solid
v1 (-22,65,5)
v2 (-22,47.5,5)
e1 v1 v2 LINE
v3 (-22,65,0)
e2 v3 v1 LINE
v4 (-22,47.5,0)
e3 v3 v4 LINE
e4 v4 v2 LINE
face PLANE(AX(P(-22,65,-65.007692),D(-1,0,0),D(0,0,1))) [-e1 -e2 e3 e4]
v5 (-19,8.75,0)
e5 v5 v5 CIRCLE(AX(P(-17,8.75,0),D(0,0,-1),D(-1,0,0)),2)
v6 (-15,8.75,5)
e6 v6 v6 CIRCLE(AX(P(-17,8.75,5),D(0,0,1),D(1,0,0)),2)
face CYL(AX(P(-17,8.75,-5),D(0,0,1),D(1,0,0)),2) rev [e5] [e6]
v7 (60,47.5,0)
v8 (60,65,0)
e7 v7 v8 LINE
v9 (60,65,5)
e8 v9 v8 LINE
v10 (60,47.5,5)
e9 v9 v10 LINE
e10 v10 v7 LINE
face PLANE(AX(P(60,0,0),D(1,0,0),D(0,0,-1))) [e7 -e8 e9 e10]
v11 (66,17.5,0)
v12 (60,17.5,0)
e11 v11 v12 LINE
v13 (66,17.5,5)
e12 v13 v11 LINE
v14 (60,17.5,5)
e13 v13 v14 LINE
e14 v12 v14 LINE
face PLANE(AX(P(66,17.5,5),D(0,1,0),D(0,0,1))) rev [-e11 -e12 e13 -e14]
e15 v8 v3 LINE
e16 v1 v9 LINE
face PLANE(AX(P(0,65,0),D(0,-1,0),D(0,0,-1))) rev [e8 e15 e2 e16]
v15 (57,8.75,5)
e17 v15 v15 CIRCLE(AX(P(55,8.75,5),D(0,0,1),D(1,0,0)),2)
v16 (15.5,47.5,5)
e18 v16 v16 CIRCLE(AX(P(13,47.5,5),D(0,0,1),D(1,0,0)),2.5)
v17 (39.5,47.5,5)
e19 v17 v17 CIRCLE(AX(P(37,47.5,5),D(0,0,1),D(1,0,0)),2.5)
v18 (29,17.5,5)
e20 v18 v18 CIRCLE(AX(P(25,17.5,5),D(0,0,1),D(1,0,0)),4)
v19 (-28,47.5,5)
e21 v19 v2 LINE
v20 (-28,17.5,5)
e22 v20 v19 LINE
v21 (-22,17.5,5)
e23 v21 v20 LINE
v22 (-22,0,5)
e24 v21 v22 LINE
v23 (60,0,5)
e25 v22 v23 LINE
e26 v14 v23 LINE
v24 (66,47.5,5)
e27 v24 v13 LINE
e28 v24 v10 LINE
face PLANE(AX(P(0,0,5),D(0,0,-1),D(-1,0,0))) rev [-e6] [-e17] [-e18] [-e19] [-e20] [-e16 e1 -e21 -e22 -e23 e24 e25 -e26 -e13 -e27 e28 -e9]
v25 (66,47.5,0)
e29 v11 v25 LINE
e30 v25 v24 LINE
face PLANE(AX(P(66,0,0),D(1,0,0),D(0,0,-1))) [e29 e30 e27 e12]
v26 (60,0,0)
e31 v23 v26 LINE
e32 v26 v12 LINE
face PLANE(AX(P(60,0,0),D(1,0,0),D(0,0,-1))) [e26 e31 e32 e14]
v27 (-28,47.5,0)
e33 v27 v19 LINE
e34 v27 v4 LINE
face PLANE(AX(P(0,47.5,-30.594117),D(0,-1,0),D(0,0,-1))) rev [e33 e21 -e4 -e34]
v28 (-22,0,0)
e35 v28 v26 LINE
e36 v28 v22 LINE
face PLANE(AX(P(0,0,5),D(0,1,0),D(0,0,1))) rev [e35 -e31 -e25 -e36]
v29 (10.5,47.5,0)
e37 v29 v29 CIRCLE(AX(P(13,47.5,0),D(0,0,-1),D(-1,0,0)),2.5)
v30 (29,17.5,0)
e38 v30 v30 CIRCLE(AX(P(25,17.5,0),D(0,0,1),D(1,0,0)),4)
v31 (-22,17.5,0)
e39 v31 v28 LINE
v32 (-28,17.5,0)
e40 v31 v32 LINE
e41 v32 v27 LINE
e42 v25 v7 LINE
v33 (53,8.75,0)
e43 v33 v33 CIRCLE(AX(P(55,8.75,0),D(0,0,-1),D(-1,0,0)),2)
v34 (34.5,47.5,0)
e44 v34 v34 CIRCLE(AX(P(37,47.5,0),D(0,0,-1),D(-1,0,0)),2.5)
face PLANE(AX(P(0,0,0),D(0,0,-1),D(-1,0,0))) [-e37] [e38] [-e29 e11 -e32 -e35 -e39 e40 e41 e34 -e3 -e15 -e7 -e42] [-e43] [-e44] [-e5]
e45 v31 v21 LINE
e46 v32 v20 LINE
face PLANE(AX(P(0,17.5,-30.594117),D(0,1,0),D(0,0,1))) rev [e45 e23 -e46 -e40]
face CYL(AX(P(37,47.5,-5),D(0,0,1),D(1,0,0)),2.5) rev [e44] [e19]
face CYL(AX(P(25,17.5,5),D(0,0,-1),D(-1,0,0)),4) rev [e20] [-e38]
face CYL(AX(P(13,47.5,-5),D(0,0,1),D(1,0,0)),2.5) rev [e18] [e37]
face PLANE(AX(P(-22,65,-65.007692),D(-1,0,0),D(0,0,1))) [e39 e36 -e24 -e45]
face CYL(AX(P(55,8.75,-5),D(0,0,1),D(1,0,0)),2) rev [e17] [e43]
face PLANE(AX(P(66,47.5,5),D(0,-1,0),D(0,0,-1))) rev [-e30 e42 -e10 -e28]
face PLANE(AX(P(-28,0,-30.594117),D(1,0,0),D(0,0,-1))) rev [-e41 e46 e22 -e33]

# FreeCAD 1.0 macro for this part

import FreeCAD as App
import Part
import Sketcher

V = App.Vector
Q = App.Units.Quantity


def add_polygon(sketch, points):
    """Adds a closed chain of lines whose ends are joined by coincident constraints."""
    first, n = sketch.GeometryCount, len(points)
    for a, b in zip(points, points[1:] + points[:1]):
        sketch.addGeometry(Part.LineSegment(App.Vector(*a, 0), App.Vector(*b, 0)), False)
    for i in range(n):
        sketch.addConstraint(Sketcher.Constraint("Coincident", first + i, 2, first + (i + 1) % n, 1))

doc = App.newDocument("Part")
body = doc.addObject("PartDesign::Body", "Body")

# Sketch on XY plane
sketch1 = body.newObject("Sketcher::SketchObject", "Sketch")
sketch1.AttachmentSupport = (doc.getObject("XY_Plane"), [""])
sketch1.MapMode = "FlatFace"
add_polygon(sketch1, [(0, 65), (0, 0), (50, 0), (50, 65)])  # lines 0-3
sketch1.addGeometry(Part.Circle(V(25, 17.5, 0), V(0, 0, 1), 4), False)  # 4
sketch1.addGeometry(Part.Circle(V(13, 47.5, 0), V(0, 0, 1), 2), False)  # 5
sketch1.addGeometry(Part.Circle(V(37, 47.5, 0), V(0, 0, 1), 2), False)  # 6
sketch1.addGeometry(Part.Circle(V(25, 59.5, 0), V(0, 0, 1), 2), False)  # 7
sketch1.addConstraint([
    Sketcher.Constraint("Vertical", 0),
    Sketcher.Constraint("Horizontal", 1),
    Sketcher.Constraint("Vertical", 2),
    Sketcher.Constraint("Horizontal", 3),
    Sketcher.Constraint("Coincident", 0, 2, -1, 1),
    Sketcher.Constraint("Equal", 5, 6),
    Sketcher.Constraint("Equal", 6, 7),
    Sketcher.Constraint("Horizontal", 5, 3, 6, 3),
    Sketcher.Constraint("Vertical", 4, 3, 7, 3),
    Sketcher.Constraint("Diameter", 4, Q("8 mm")),
    Sketcher.Constraint("Diameter", 5, Q("4 mm")),
    Sketcher.Constraint("DistanceX", 1, 1, 1, 2, Q("50 mm")),
    Sketcher.Constraint("DistanceY", 0, 2, 0, 1, Q("65 mm")),
    Sketcher.Constraint("DistanceX", -1, 1, 4, 3, Q("25 mm")),
    Sketcher.Constraint("DistanceX", -1, 1, 5, 3, Q("13 mm")),
    Sketcher.Constraint("DistanceX", -1, 1, 6, 3, Q("37 mm")),
    Sketcher.Constraint("DistanceY", 4, 3, 5, 3, Q("30 mm")),
    Sketcher.Constraint("DistanceY", 5, 3, 7, 3, Q("12 mm")),
    Sketcher.Constraint("DistanceY", -1, 1, 4, 3, Q("17.5 mm")),
])
pad1 = body.newObject("PartDesign::Pad", "Pad")
pad1.Profile = sketch1
pad1.Length = 5

# Sketch on XY plane
sketch2 = body.newObject("Sketcher::SketchObject", "Sketch001")
sketch2.AttachmentSupport = (doc.getObject("XY_Plane"), [""])
sketch2.MapMode = "FlatFace"
sketch2.AttachmentOffset = App.Placement(V(0, 0, 5), App.Rotation())
add_polygon(sketch2, [(-21, 65), (-21, 0), (0, 0), (0, 65)])  # lines 0-3
sketch2.addConstraint([
    Sketcher.Constraint("Vertical", 0),
    Sketcher.Constraint("Horizontal", 1),
    Sketcher.Constraint("Vertical", 2),
    Sketcher.Constraint("Horizontal", 3),
    Sketcher.Constraint("Coincident", 1, 2, -1, 1),
    Sketcher.Constraint("DistanceX", 1, 1, 1, 2, Q("21 mm")),
    Sketcher.Constraint("DistanceY", 0, 2, 0, 1, Q("65 mm")),
])
pad2 = body.newObject("PartDesign::Pad", "Pad001")
pad2.Profile = sketch2
pad2.Length = 5
pad2.Reversed = True

# Sketch on XY plane
sketch3 = body.newObject("Sketcher::SketchObject", "Sketch002")
sketch3.AttachmentSupport = (doc.getObject("XY_Plane"), [""])
sketch3.MapMode = "FlatFace"
sketch3.AttachmentOffset = App.Placement(V(0, 0, 5), App.Rotation())
add_polygon(sketch3, [(-22, 65), (-22, 0), (-21, 0), (-21, 65)])  # lines 0-3
sketch3.addConstraint([
    Sketcher.Constraint("Vertical", 0),
    Sketcher.Constraint("Horizontal", 1),
    Sketcher.Constraint("Vertical", 2),
    Sketcher.Constraint("Horizontal", 3),
    Sketcher.Constraint("PointOnObject", 0, 2, -1),
    Sketcher.Constraint("DistanceX", 1, 1, 1, 2, Q("1 mm")),
    Sketcher.Constraint("DistanceY", 0, 2, 0, 1, Q("65 mm")),
    Sketcher.Constraint("DistanceX", 0, 2, -1, 1, Q("22 mm")),
])
pad3 = body.newObject("PartDesign::Pad", "Pad002")
pad3.Profile = sketch3
pad3.Length = 5
pad3.Reversed = True

# Sketch on XY plane
sketch4 = body.newObject("Sketcher::SketchObject", "Sketch003")
sketch4.AttachmentSupport = (doc.getObject("XY_Plane"), [""])
sketch4.MapMode = "FlatFace"
sketch4.AttachmentOffset = App.Placement(V(0, 0, 5), App.Rotation())
add_polygon(sketch4, [(-22, 17.5), (-22, 47.5), (-28, 47.5), (-28, 17.5)])  # lines 0-3
add_polygon(sketch4, [(56, 17.5), (56, 47.5), (50, 47.5), (50, 17.5)])  # lines 4-7
sketch4.addConstraint([
    Sketcher.Constraint("Vertical", 0),
    Sketcher.Constraint("Horizontal", 1),
    Sketcher.Constraint("Vertical", 2),
    Sketcher.Constraint("Horizontal", 3),
    Sketcher.Constraint("Vertical", 4),
    Sketcher.Constraint("Horizontal", 5),
    Sketcher.Constraint("Vertical", 6),
    Sketcher.Constraint("Horizontal", 7),
    Sketcher.Constraint("Horizontal", 1, 2, 4, 2),
    Sketcher.Constraint("Horizontal", 3, 2, 6, 2),
    Sketcher.Constraint("Equal", 3, 5),
    Sketcher.Constraint("DistanceX", 1, 2, 1, 1, Q("6 mm")),
    Sketcher.Constraint("DistanceY", 0, 1, 0, 2, Q("30 mm")),
    Sketcher.Constraint("DistanceX", 0, 2, -1, 1, Q("22 mm")),
    Sketcher.Constraint("DistanceX", -1, 1, 4, 2, Q("56 mm")),
    Sketcher.Constraint("DistanceY", -1, 1, 0, 2, Q("47.5 mm")),
])
pad4 = body.newObject("PartDesign::Pad", "Pad003")
pad4.Profile = sketch4
pad4.Length = 5
pad4.Reversed = True

# Sketch on XY plane
sketch5 = body.newObject("Sketcher::SketchObject", "Sketch004")
sketch5.AttachmentSupport = (doc.getObject("XY_Plane"), [""])
sketch5.MapMode = "FlatFace"
sketch5.AttachmentOffset = App.Placement(V(0, 0, 5), App.Rotation())
sketch5.addGeometry(Part.Circle(V(25, 35.5, 0), V(0, 0, 1), 2), False)
sketch5.addConstraint([
    Sketcher.Constraint("Diameter", 0, Q("4 mm")),
    Sketcher.Constraint("DistanceX", -1, 1, 0, 3, Q("25 mm")),
    Sketcher.Constraint("DistanceY", -1, 1, 0, 3, Q("35.5 mm")),
])
pocket1 = body.newObject("PartDesign::Pocket", "Pocket")
pocket1.Profile = sketch5
pocket1.Length = 59

# Sketch on XY plane
sketch6 = body.newObject("Sketcher::SketchObject", "Sketch005")
sketch6.AttachmentSupport = (doc.getObject("XY_Plane"), [""])
sketch6.MapMode = "FlatFace"
sketch6.AttachmentOffset = App.Placement(V(0, 0, 5), App.Rotation())
sketch6.addGeometry([
    Part.Circle(V(-17, 56.25, 0), V(0, 0, 1), 1.5),
    Part.Circle(V(45, 56.25, 0), V(0, 0, 1), 1.5),
], False)
sketch6.addConstraint([
    Sketcher.Constraint("Equal", 0, 1),
    Sketcher.Constraint("Horizontal", 0, 3, 1, 3),
    Sketcher.Constraint("Diameter", 0, Q("3 mm")),
    Sketcher.Constraint("DistanceX", 0, 3, -1, 1, Q("17 mm")),
    Sketcher.Constraint("DistanceX", -1, 1, 1, 3, Q("45 mm")),
    Sketcher.Constraint("DistanceY", -1, 1, 0, 3, Q("56.25 mm")),
])
pocket2 = body.newObject("PartDesign::Pocket", "Pocket001")
pocket2.Profile = sketch6
pocket2.Length = 10

# Sketch on XY plane
sketch7 = body.newObject("Sketcher::SketchObject", "Sketch006")
sketch7.AttachmentSupport = (doc.getObject("XY_Plane"), [""])
sketch7.MapMode = "FlatFace"
sketch7.AttachmentOffset = App.Placement(V(0, 0, 5), App.Rotation())
sketch7.addGeometry([
    Part.Circle(V(45, 8.75, 0), V(0, 0, 1), 1.5),
    Part.Circle(V(-17, 8.75, 0), V(0, 0, 1), 1.5),
], False)
sketch7.addConstraint([
    Sketcher.Constraint("Equal", 0, 1),
    Sketcher.Constraint("Horizontal", 0, 3, 1, 3),
    Sketcher.Constraint("Diameter", 0, Q("3 mm")),
    Sketcher.Constraint("DistanceX", -1, 1, 0, 3, Q("45 mm")),
    Sketcher.Constraint("DistanceX", 1, 3, -1, 1, Q("17 mm")),
    Sketcher.Constraint("DistanceY", -1, 1, 0, 3, Q("8.75 mm")),
])
pocket3 = body.newObject("PartDesign::Pocket", "Pocket002")
pocket3.Profile = sketch7
pocket3.Length = 10

# Sketch on XY plane
sketch8 = body.newObject("Sketcher::SketchObject", "Sketch007")
sketch8.AttachmentSupport = (doc.getObject("XY_Plane"), [""])
sketch8.MapMode = "FlatFace"
sketch8.AttachmentOffset = App.Placement(V(0, 0, 5), App.Rotation())
sketch8.addGeometry([
    Part.Circle(V(-17, 56.25, 0), V(0, 0, 1), 1.5),
    Part.Circle(V(45, 56.25, 0), V(0, 0, 1), 1.5),
], False)
sketch8.addConstraint([
    Sketcher.Constraint("Equal", 0, 1),
    Sketcher.Constraint("Horizontal", 0, 3, 1, 3),
    Sketcher.Constraint("Diameter", 0, Q("3 mm")),
    Sketcher.Constraint("DistanceX", 0, 3, -1, 1, Q("17 mm")),
    Sketcher.Constraint("DistanceX", -1, 1, 1, 3, Q("45 mm")),
    Sketcher.Constraint("DistanceY", -1, 1, 0, 3, Q("56.25 mm")),
])
pad5 = body.newObject("PartDesign::Pad", "Pad004")
pad5.Profile = sketch8
pad5.Length = 5
pad5.Reversed = True

# Sketch on XY plane
sketch9 = body.newObject("Sketcher::SketchObject", "Sketch008")
sketch9.AttachmentSupport = (doc.getObject("XY_Plane"), [""])
sketch9.MapMode = "FlatFace"
sketch9.AttachmentOffset = App.Placement(V(0, 0, 5), App.Rotation())
sketch9.addGeometry([
    Part.Circle(V(-17, 8.75, 0), V(0, 0, 1), 2),
    Part.Circle(V(45, 8.75, 0), V(0, 0, 1), 2),
], False)
sketch9.addConstraint([
    Sketcher.Constraint("Equal", 0, 1),
    Sketcher.Constraint("Horizontal", 0, 3, 1, 3),
    Sketcher.Constraint("Diameter", 0, Q("4 mm")),
    Sketcher.Constraint("DistanceX", 0, 3, -1, 1, Q("17 mm")),
    Sketcher.Constraint("DistanceX", -1, 1, 1, 3, Q("45 mm")),
    Sketcher.Constraint("DistanceY", -1, 1, 0, 3, Q("8.75 mm")),
])
pocket4 = body.newObject("PartDesign::Pocket", "Pocket003")
pocket4.Profile = sketch9
pocket4.Length = 10

# Sketch on XY plane
sketch10 = body.newObject("Sketcher::SketchObject", "Sketch009")
sketch10.AttachmentSupport = (doc.getObject("XY_Plane"), [""])
sketch10.MapMode = "FlatFace"
sketch10.AttachmentOffset = App.Placement(V(0, 0, 5), App.Rotation())
sketch10.addGeometry([
    Part.Circle(V(25, 59.5, 0), V(0, 0, 1), 2.5),
    Part.Circle(V(25, 35.5, 0), V(0, 0, 1), 2.5),
    Part.Circle(V(13, 47.5, 0), V(0, 0, 1), 2.5),
    Part.Circle(V(37, 47.5, 0), V(0, 0, 1), 2.5),
], False)
sketch10.addConstraint([
    Sketcher.Constraint("Equal", 0, 1),
    Sketcher.Constraint("Equal", 1, 2),
    Sketcher.Constraint("Equal", 2, 3),
    Sketcher.Constraint("Horizontal", 2, 3, 3, 3),
    Sketcher.Constraint("Vertical", 0, 3, 1, 3),
    Sketcher.Constraint("Diameter", 0, Q("5 mm")),
    Sketcher.Constraint("DistanceX", -1, 1, 0, 3, Q("25 mm")),
    Sketcher.Constraint("DistanceX", -1, 1, 2, 3, Q("13 mm")),
    Sketcher.Constraint("DistanceX", -1, 1, 3, 3, Q("37 mm")),
    Sketcher.Constraint("DistanceY", 1, 3, 0, 3, Q("24 mm")),
    Sketcher.Constraint("DistanceY", 2, 3, 0, 3, Q("12 mm")),
    Sketcher.Constraint("DistanceY", -1, 1, 0, 3, Q("59.5 mm")),
])
pocket5 = body.newObject("PartDesign::Pocket", "Pocket004")
pocket5.Profile = sketch10
pocket5.Length = 10

# Sketch on XY plane
sketch11 = body.newObject("Sketcher::SketchObject", "Sketch010")
sketch11.AttachmentSupport = (doc.getObject("XY_Plane"), [""])
sketch11.MapMode = "FlatFace"
sketch11.AttachmentOffset = App.Placement(V(0, 0, 5), App.Rotation())
sketch11.addGeometry([
    Part.Circle(V(13, 47.5, 0), V(0, 0, 1), 2.5),
    Part.Circle(V(25, 59.5, 0), V(0, 0, 1), 2.5),
    Part.Circle(V(37, 47.5, 0), V(0, 0, 1), 2.5),
    Part.Circle(V(25, 35.5, 0), V(0, 0, 1), 2.5),
], False)
sketch11.addConstraint([
    Sketcher.Constraint("Equal", 0, 1),
    Sketcher.Constraint("Equal", 1, 2),
    Sketcher.Constraint("Equal", 2, 3),
    Sketcher.Constraint("Horizontal", 0, 3, 2, 3),
    Sketcher.Constraint("Vertical", 1, 3, 3, 3),
    Sketcher.Constraint("Diameter", 0, Q("5 mm")),
    Sketcher.Constraint("DistanceX", -1, 1, 0, 3, Q("13 mm")),
    Sketcher.Constraint("DistanceX", -1, 1, 1, 3, Q("25 mm")),
    Sketcher.Constraint("DistanceX", -1, 1, 2, 3, Q("37 mm")),
    Sketcher.Constraint("DistanceY", 0, 3, 1, 3, Q("12 mm")),
    Sketcher.Constraint("DistanceY", 3, 3, 0, 3, Q("12 mm")),
    Sketcher.Constraint("DistanceY", -1, 1, 0, 3, Q("47.5 mm")),
])
pad6 = body.newObject("PartDesign::Pad", "Pad005")
pad6.Profile = sketch11
pad6.Length = 5
pad6.Reversed = True

# Sketch on XY plane
sketch12 = body.newObject("Sketcher::SketchObject", "Sketch011")
sketch12.AttachmentSupport = (doc.getObject("XY_Plane"), [""])
sketch12.MapMode = "FlatFace"
sketch12.AttachmentOffset = App.Placement(V(0, 0, 5), App.Rotation())
sketch12.addGeometry([
    Part.Circle(V(6.5, 47.5, 0), V(0, 0, 1), 2.5),
    Part.Circle(V(43.5, 47.5, 0), V(0, 0, 1), 2.5),
], False)
sketch12.addConstraint([
    Sketcher.Constraint("Equal", 0, 1),
    Sketcher.Constraint("Horizontal", 0, 3, 1, 3),
    Sketcher.Constraint("Diameter", 0, Q("5 mm")),
    Sketcher.Constraint("DistanceX", 0, 3, 1, 3, Q("37 mm")),
    Sketcher.Constraint("DistanceX", -1, 1, 0, 3, Q("6.5 mm")),
    Sketcher.Constraint("DistanceY", -1, 1, 0, 3, Q("47.5 mm")),
])
pocket6 = body.newObject("PartDesign::Pocket", "Pocket005")
pocket6.Profile = sketch12
pocket6.Length = 10

# Sketch on XZ plane
sketch13 = body.newObject("Sketcher::SketchObject", "Sketch012")
sketch13.AttachmentSupport = (doc.getObject("XZ_Plane"), [""])
sketch13.MapMode = "FlatFace"
sketch13.AttachmentOffset = App.Placement(V(0, 0, -65), App.Rotation())
add_polygon(sketch13, [(-22, 0), (-22, 5), (50, 5), (50, 0)])  # lines 0-3
sketch13.addConstraint([
    Sketcher.Constraint("Vertical", 0),
    Sketcher.Constraint("Horizontal", 1),
    Sketcher.Constraint("Vertical", 2),
    Sketcher.Constraint("Horizontal", 3),
    Sketcher.Constraint("PointOnObject", 2, 2, -1),
    Sketcher.Constraint("DistanceX", 1, 1, 1, 2, Q("72 mm")),
    Sketcher.Constraint("DistanceY", 0, 1, 0, 2, Q("5 mm")),
    Sketcher.Constraint("DistanceX", 0, 2, -1, 1, Q("22 mm")),
])
pad7 = body.newObject("PartDesign::Pad", "Pad006")
pad7.Profile = sketch13
pad7.Length = 10
pad7.Reversed = True

# Sketch on YZ plane
sketch14 = body.newObject("Sketcher::SketchObject", "Sketch013")
sketch14.AttachmentSupport = (doc.getObject("YZ_Plane"), [""])
sketch14.MapMode = "FlatFace"
sketch14.AttachmentOffset = App.Placement(V(0, 0, 50), App.Rotation())
add_polygon(sketch14, [(17.5, 5), (0, 5), (0, 0), (17.5, 0)])  # lines 0-3
sketch14.addConstraint([
    Sketcher.Constraint("Horizontal", 0),
    Sketcher.Constraint("Vertical", 1),
    Sketcher.Constraint("Horizontal", 2),
    Sketcher.Constraint("Vertical", 3),
    Sketcher.Constraint("Coincident", 1, 2, -1, 1),
    Sketcher.Constraint("DistanceY", 1, 2, 1, 1, Q("5 mm")),
    Sketcher.Constraint("DistanceX", 0, 2, 0, 1, Q("17.5 mm")),
])
pad8 = body.newObject("PartDesign::Pad", "Pad007")
pad8.Profile = sketch14
pad8.Length = 10

# Sketch on YZ plane
sketch15 = body.newObject("Sketcher::SketchObject", "Sketch014")
sketch15.AttachmentSupport = (doc.getObject("YZ_Plane"), [""])
sketch15.MapMode = "FlatFace"
sketch15.AttachmentOffset = App.Placement(V(0, 0, 50), App.Rotation())
add_polygon(sketch15, [(75, 5), (47.5, 5), (47.5, 0), (75, 0)])  # lines 0-3
sketch15.addConstraint([
    Sketcher.Constraint("Horizontal", 0),
    Sketcher.Constraint("Vertical", 1),
    Sketcher.Constraint("Horizontal", 2),
    Sketcher.Constraint("Vertical", 3),
    Sketcher.Constraint("PointOnObject", 1, 2, -1),
    Sketcher.Constraint("DistanceY", 1, 2, 1, 1, Q("5 mm")),
    Sketcher.Constraint("DistanceX", 0, 2, 0, 1, Q("27.5 mm")),
    Sketcher.Constraint("DistanceX", -1, 1, 2, 2, Q("75 mm")),
])
pad9 = body.newObject("PartDesign::Pad", "Pad008")
pad9.Profile = sketch15
pad9.Length = 10

# Sketch on YZ plane
sketch16 = body.newObject("Sketcher::SketchObject", "Sketch015")
sketch16.AttachmentSupport = (doc.getObject("YZ_Plane"), [""])
sketch16.MapMode = "FlatFace"
sketch16.AttachmentOffset = App.Placement(V(0, 0, 56), App.Rotation())
add_polygon(sketch16, [(47.5, 5), (17.5, 5), (17.5, 0), (47.5, 0)])  # lines 0-3
sketch16.addConstraint([
    Sketcher.Constraint("Horizontal", 0),
    Sketcher.Constraint("Vertical", 1),
    Sketcher.Constraint("Horizontal", 2),
    Sketcher.Constraint("Vertical", 3),
    Sketcher.Constraint("PointOnObject", 1, 2, -1),
    Sketcher.Constraint("DistanceX", 0, 2, 0, 1, Q("30 mm")),
    Sketcher.Constraint("DistanceY", 1, 2, 1, 1, Q("5 mm")),
    Sketcher.Constraint("DistanceX", -1, 1, 0, 2, Q("17.5 mm")),
])
pad10 = body.newObject("PartDesign::Pad", "Pad009")
pad10.Profile = sketch16
pad10.Length = 10

# Sketch on XY plane
sketch17 = body.newObject("Sketcher::SketchObject", "Sketch016")
sketch17.AttachmentSupport = (doc.getObject("XY_Plane"), [""])
sketch17.MapMode = "FlatFace"
sketch17.AttachmentOffset = App.Placement(V(0, 0, 5), App.Rotation())
sketch17.addGeometry([
    Part.Circle(V(45, 8.75, 0), V(0, 0, 1), 2),
    Part.Circle(V(55, 8.75, 0), V(0, 0, 1), 2),
], False)
sketch17.addConstraint([
    Sketcher.Constraint("Equal", 0, 1),
    Sketcher.Constraint("Horizontal", 0, 3, 1, 3),
    Sketcher.Constraint("Diameter", 0, Q("4 mm")),
    Sketcher.Constraint("DistanceX", -1, 1, 0, 3, Q("45 mm")),
    Sketcher.Constraint("DistanceX", -1, 1, 1, 3, Q("55 mm")),
    Sketcher.Constraint("DistanceY", -1, 1, 0, 3, Q("8.75 mm")),
])
pad11 = body.newObject("PartDesign::Pad", "Pad010")
pad11.Profile = sketch17
pad11.Length = 5
pad11.Reversed = True

# Sketch on XY plane
sketch18 = body.newObject("Sketcher::SketchObject", "Sketch017")
sketch18.AttachmentSupport = (doc.getObject("XY_Plane"), [""])
sketch18.MapMode = "FlatFace"
sketch18.AttachmentOffset = App.Placement(V(0, 0, 5), App.Rotation())
sketch18.addGeometry(Part.Circle(V(55, 8.75, 0), V(0, 0, 1), 2), False)
sketch18.addConstraint([
    Sketcher.Constraint("Diameter", 0, Q("4 mm")),
    Sketcher.Constraint("DistanceX", -1, 1, 0, 3, Q("55 mm")),
    Sketcher.Constraint("DistanceY", -1, 1, 0, 3, Q("8.75 mm")),
])
pocket7 = body.newObject("PartDesign::Pocket", "Pocket006")
pocket7.Profile = sketch18
pocket7.Length = 10

# Sketch on XZ plane
sketch19 = body.newObject("Sketcher::SketchObject", "Sketch018")
sketch19.AttachmentSupport = (doc.getObject("XZ_Plane"), [""])
sketch19.MapMode = "FlatFace"
sketch19.AttachmentOffset = App.Placement(V(0, 0, -75), App.Rotation())
add_polygon(sketch19, [(-22, 0), (-22, 5), (60, 5), (60, 0)])  # lines 0-3
sketch19.addConstraint([
    Sketcher.Constraint("Vertical", 0),
    Sketcher.Constraint("Horizontal", 1),
    Sketcher.Constraint("Vertical", 2),
    Sketcher.Constraint("Horizontal", 3),
    Sketcher.Constraint("PointOnObject", 2, 2, -1),
    Sketcher.Constraint("DistanceX", 1, 1, 1, 2, Q("82 mm")),
    Sketcher.Constraint("DistanceY", 0, 1, 0, 2, Q("5 mm")),
    Sketcher.Constraint("DistanceX", 0, 2, -1, 1, Q("22 mm")),
])
pocket8 = body.newObject("PartDesign::Pocket", "Pocket007")
pocket8.Profile = sketch19
pocket8.Length = 10
pocket8.Reversed = True

# Sketch on XY plane
sketch20 = body.newObject("Sketcher::SketchObject", "Sketch019")
sketch20.AttachmentSupport = (doc.getObject("XY_Plane"), [""])
sketch20.MapMode = "FlatFace"
sketch20.AttachmentOffset = App.Placement(V(0, 0, 5), App.Rotation())
sketch20.addGeometry([
    Part.Circle(V(6.5, 47.5, 0), V(0, 0, 1), 2.5),
    Part.Circle(V(13, 47.5, 0), V(0, 0, 1), 2.5),
    Part.Circle(V(37, 47.5, 0), V(0, 0, 1), 2.5),
    Part.Circle(V(43.5, 47.5, 0), V(0, 0, 1), 2.5),
], False)
sketch20.addConstraint([
    Sketcher.Constraint("Equal", 0, 1),
    Sketcher.Constraint("Equal", 1, 2),
    Sketcher.Constraint("Equal", 2, 3),
    Sketcher.Constraint("Horizontal", 0, 3, 1, 3),
    Sketcher.Constraint("Horizontal", 1, 3, 2, 3),
    Sketcher.Constraint("Horizontal", 2, 3, 3, 3),
    Sketcher.Constraint("Diameter", 0, Q("5 mm")),
    Sketcher.Constraint("DistanceX", -1, 1, 1, 3, Q("13 mm")),
    Sketcher.Constraint("DistanceX", -1, 1, 2, 3, Q("37 mm")),
    Sketcher.Constraint("DistanceX", 0, 3, 3, 3, Q("37 mm")),
    Sketcher.Constraint("DistanceX", -1, 1, 0, 3, Q("6.5 mm")),
    Sketcher.Constraint("DistanceY", -1, 1, 0, 3, Q("47.5 mm")),
])
pad12 = body.newObject("PartDesign::Pad", "Pad011")
pad12.Profile = sketch20
pad12.Length = 5
pad12.Reversed = True

# Sketch on XY plane
sketch21 = body.newObject("Sketcher::SketchObject", "Sketch020")
sketch21.AttachmentSupport = (doc.getObject("XY_Plane"), [""])
sketch21.MapMode = "FlatFace"
sketch21.AttachmentOffset = App.Placement(V(0, 0, 5), App.Rotation())
sketch21.addGeometry([
    Part.Circle(V(13, 47.5, 0), V(0, 0, 1), 2.5),
    Part.Circle(V(37, 47.5, 0), V(0, 0, 1), 2.5),
], False)
sketch21.addConstraint([
    Sketcher.Constraint("Equal", 0, 1),
    Sketcher.Constraint("Horizontal", 0, 3, 1, 3),
    Sketcher.Constraint("Diameter", 0, Q("5 mm")),
    Sketcher.Constraint("DistanceX", -1, 1, 0, 3, Q("13 mm")),
    Sketcher.Constraint("DistanceX", -1, 1, 1, 3, Q("37 mm")),
    Sketcher.Constraint("DistanceY", -1, 1, 0, 3, Q("47.5 mm")),
])
pocket9 = body.newObject("PartDesign::Pocket", "Pocket008")
pocket9.Profile = sketch21
pocket9.Length = 10

doc.recompute()
